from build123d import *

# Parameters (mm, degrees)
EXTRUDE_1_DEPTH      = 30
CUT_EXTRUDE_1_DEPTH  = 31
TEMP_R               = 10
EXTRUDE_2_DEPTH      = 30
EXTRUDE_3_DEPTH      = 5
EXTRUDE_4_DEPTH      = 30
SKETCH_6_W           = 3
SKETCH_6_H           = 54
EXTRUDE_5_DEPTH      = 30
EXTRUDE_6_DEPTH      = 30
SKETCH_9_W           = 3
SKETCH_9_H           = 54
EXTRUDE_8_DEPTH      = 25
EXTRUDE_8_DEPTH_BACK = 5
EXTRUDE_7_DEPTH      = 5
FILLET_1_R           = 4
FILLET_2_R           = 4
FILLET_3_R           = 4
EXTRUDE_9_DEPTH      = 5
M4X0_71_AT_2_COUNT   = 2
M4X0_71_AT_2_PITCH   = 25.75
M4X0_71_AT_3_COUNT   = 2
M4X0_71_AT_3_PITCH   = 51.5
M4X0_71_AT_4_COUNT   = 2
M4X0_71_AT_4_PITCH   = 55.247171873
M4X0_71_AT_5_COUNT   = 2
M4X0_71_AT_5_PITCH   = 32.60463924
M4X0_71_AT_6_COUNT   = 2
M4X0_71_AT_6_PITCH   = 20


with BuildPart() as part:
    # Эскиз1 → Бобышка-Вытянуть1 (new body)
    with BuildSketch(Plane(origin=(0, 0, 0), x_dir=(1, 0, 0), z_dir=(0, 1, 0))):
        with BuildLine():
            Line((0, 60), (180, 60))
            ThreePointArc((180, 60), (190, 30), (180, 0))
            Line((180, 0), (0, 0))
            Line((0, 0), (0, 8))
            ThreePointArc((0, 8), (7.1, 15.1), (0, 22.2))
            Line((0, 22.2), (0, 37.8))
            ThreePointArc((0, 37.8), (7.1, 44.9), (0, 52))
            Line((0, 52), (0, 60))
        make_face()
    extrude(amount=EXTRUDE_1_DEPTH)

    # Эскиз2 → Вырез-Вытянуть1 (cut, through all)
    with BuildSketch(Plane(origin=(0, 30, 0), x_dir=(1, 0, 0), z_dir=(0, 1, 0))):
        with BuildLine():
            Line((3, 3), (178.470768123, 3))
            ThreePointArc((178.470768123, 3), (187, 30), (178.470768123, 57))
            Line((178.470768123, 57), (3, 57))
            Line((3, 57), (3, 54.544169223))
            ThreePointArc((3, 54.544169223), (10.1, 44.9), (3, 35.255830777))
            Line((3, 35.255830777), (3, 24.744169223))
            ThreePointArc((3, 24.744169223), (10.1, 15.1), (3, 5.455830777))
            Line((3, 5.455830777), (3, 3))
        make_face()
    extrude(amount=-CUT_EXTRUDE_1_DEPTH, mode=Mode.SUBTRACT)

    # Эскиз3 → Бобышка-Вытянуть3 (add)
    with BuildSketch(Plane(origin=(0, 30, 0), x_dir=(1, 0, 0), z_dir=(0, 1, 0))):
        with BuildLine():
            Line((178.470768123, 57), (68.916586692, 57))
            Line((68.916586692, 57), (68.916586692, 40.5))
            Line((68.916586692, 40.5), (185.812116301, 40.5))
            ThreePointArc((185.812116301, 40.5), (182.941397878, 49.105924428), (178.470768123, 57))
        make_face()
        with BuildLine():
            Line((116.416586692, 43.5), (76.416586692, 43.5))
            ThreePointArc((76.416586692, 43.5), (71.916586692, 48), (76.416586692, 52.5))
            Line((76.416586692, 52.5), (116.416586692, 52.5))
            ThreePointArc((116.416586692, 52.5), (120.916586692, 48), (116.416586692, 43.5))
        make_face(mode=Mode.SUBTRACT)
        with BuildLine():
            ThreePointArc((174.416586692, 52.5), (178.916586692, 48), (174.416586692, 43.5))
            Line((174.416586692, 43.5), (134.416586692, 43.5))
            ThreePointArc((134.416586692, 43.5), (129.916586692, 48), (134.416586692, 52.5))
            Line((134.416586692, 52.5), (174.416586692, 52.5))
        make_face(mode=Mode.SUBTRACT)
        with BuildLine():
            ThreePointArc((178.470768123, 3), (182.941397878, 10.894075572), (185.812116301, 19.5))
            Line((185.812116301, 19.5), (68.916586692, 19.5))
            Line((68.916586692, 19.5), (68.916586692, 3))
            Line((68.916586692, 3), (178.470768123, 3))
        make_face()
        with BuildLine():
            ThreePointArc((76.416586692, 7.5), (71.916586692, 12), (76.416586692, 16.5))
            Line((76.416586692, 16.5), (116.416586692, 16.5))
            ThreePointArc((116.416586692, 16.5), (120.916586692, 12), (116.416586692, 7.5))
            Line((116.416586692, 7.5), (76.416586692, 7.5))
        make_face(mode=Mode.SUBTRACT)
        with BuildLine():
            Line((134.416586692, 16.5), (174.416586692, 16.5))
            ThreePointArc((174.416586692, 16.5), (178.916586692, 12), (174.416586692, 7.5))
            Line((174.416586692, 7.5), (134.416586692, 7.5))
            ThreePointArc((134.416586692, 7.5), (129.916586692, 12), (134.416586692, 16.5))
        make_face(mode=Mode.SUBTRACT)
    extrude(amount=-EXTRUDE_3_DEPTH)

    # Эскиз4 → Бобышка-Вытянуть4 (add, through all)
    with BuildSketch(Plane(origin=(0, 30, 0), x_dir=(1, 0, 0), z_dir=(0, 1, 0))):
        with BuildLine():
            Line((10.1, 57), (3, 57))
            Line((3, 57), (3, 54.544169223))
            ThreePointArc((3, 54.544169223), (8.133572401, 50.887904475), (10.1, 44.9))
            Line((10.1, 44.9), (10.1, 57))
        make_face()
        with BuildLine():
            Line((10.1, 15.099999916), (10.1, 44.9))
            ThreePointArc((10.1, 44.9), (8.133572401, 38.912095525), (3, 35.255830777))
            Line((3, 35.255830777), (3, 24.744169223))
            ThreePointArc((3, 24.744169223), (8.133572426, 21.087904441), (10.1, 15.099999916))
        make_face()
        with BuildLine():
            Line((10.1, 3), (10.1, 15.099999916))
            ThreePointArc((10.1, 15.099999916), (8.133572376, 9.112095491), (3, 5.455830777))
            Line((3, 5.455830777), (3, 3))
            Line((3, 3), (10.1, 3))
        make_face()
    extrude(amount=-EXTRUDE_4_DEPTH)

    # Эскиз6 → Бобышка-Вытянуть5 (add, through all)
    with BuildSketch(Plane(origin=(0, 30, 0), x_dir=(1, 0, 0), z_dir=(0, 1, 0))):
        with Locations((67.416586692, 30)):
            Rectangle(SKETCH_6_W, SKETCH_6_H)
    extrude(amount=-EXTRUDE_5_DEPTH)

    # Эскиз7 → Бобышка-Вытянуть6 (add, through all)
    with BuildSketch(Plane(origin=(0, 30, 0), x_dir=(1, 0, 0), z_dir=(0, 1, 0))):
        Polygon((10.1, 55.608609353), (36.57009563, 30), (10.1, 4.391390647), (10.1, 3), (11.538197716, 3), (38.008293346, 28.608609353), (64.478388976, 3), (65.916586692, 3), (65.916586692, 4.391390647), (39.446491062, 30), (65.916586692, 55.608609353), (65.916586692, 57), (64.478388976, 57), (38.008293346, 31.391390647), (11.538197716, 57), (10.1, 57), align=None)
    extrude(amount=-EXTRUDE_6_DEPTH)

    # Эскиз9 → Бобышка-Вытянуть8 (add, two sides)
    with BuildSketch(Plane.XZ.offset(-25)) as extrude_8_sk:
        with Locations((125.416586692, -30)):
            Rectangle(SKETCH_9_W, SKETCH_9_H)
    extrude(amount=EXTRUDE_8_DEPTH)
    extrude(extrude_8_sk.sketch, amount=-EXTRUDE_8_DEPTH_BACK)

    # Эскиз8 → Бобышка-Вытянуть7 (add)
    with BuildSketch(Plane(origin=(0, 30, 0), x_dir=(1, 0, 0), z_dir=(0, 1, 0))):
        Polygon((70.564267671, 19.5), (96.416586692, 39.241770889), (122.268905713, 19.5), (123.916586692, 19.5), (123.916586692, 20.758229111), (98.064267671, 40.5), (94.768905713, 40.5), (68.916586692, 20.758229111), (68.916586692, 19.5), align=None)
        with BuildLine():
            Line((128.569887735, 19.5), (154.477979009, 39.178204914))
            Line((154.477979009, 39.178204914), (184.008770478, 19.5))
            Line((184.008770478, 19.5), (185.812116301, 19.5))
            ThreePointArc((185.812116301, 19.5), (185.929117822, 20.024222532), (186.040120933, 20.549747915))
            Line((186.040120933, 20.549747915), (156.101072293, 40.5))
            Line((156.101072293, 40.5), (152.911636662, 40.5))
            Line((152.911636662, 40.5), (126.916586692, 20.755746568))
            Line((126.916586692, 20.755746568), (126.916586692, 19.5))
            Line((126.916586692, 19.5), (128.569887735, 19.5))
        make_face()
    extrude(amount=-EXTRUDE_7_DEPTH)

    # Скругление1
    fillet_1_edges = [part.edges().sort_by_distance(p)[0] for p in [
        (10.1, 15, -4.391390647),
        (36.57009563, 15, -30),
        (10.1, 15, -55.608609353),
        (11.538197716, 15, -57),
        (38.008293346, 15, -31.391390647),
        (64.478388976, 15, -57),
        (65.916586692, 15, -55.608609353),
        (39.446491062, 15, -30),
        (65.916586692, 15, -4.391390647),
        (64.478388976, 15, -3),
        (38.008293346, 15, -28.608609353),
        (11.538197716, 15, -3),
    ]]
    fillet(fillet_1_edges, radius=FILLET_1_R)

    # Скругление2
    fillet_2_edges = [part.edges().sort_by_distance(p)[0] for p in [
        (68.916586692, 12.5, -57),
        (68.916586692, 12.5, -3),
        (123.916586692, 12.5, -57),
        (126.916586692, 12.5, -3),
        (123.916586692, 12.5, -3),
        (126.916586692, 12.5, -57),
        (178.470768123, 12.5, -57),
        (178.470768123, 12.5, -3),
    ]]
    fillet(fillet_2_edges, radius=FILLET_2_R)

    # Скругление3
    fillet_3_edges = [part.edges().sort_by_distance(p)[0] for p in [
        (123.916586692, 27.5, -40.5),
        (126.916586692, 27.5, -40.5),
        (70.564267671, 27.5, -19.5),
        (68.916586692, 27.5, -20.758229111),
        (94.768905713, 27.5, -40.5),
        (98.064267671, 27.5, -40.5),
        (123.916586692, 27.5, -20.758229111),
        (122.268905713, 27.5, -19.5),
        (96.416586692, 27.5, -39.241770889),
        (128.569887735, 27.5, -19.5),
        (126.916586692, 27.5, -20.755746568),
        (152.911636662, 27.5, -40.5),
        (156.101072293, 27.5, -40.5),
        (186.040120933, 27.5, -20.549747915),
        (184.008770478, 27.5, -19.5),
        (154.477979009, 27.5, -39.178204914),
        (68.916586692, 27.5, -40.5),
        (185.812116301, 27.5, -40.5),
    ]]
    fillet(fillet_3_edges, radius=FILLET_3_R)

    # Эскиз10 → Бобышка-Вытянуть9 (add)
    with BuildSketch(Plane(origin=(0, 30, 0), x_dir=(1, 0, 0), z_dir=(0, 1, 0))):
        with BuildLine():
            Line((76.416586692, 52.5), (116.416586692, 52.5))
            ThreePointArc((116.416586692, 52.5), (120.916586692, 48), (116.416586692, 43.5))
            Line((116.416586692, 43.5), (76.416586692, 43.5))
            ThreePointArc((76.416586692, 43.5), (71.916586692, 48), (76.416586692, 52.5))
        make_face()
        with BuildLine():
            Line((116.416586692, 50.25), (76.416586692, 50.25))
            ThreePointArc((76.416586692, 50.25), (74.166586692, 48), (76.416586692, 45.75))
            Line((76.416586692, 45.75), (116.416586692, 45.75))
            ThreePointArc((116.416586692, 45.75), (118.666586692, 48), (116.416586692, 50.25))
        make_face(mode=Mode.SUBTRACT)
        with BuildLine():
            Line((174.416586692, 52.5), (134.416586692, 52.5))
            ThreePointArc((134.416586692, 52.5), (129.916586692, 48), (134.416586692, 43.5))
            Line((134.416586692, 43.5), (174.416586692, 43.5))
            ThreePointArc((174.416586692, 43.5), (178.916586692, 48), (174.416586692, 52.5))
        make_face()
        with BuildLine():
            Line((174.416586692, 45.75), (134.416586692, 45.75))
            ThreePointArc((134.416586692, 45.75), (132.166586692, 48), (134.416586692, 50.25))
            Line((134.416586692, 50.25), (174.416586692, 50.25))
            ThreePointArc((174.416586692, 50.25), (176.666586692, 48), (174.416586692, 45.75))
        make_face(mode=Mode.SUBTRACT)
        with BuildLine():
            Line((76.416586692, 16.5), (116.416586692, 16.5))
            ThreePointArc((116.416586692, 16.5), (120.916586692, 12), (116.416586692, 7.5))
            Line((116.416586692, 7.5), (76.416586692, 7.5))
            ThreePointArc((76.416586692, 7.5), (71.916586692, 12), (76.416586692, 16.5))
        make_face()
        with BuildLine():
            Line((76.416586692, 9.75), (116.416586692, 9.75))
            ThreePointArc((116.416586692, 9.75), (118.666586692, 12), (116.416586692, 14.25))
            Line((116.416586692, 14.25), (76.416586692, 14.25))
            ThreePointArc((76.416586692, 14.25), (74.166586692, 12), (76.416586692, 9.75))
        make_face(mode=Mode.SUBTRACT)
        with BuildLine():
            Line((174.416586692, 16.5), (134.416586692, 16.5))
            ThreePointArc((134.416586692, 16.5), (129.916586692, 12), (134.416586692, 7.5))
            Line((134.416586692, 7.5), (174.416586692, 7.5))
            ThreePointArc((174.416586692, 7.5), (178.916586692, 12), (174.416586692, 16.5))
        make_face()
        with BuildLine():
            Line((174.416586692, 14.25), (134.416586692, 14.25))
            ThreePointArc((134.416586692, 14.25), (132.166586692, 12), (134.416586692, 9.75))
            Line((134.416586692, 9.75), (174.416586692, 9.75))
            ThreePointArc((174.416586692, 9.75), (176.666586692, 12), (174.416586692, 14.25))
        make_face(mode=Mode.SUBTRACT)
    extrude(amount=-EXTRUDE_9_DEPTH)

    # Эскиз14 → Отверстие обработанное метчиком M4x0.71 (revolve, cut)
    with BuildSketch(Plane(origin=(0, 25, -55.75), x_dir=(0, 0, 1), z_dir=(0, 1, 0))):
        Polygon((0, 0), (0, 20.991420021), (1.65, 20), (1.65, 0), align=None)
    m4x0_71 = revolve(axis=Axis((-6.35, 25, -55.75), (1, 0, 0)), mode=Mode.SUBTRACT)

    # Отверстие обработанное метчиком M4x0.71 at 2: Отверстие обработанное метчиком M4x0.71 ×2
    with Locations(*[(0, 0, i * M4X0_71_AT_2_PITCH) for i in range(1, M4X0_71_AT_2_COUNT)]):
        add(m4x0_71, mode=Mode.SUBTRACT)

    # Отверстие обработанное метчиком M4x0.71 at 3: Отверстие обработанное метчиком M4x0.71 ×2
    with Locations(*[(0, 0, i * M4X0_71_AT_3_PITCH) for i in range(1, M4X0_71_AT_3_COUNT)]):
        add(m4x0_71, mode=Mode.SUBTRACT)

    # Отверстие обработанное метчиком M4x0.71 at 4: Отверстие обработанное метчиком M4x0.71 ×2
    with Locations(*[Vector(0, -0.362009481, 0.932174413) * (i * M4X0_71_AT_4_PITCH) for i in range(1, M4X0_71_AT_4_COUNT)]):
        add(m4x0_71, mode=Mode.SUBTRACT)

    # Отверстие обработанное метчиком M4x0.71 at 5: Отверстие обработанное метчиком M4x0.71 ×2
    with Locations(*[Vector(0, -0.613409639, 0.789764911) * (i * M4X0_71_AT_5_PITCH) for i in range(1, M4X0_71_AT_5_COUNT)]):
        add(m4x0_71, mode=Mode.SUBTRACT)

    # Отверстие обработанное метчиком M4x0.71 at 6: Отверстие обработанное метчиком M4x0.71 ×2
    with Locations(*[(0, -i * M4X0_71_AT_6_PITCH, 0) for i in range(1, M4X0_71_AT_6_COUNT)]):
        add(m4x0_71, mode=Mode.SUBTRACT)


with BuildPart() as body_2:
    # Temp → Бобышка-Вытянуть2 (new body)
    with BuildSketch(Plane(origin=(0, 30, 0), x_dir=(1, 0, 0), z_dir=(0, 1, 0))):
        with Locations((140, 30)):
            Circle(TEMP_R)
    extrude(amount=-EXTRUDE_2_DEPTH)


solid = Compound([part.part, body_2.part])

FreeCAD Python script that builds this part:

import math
import FreeCAD as App
import Part
import Sketcher
Q = App.Units.Quantity


def edges_at(feature, points):
    """Names of the edges that pass closest to the given points."""
    edges = feature.Shape.Edges
    near = lambda p: min(range(len(edges)), key=lambda i: edges[i].distToShape(Part.Vertex(*p))[0])
    return sorted({f"Edge{near(p) + 1}" for p in points})


def add_polygon(sketch, points):
    """Adds a closed chain of lines whose ends are joined by coincident constraints."""
    first, n = sketch.GeometryCount, len(points)
    for a, b in zip(points, points[1:] + points[:1]):
        sketch.addGeometry(Part.LineSegment(App.Vector(*a, 0), App.Vector(*b, 0)), False)
    for i in range(n):
        sketch.addConstraint(Sketcher.Constraint("Coincident", first + i, 2, first + (i + 1) % n, 1))

doc = App.newDocument("Part")
params = doc.addObject("Spreadsheet::Sheet", "Params")
for row, (alias, value) in enumerate([
    ("sketch1_radius", "50 mm"),
    ("sketch1_radius2", "7.1 mm"),
    ("sketch1_width", "180 mm"),
    ("sketch1_height", "8 mm"),
    ("sketch1_height2", "15.6 mm"),
    ("pad1_length", "30 mm"),
    ("sketch2_radius", "47 mm"),
    ("sketch2_radius2", "10.1 mm"),
    ("sketch3_radius", "47 mm"),
    ("sketch3_radius2", "4.5 mm"),
    ("sketch3_width", "40 mm"),
    ("sketch3_height", "16.5 mm"),
    ("pad2_length", "5 mm"),
    ("sketch4_radius", "10.1 mm"),
    ("sketch4_width", "7.1 mm"),
    ("sketch4_height", "12.1 mm"),
    ("sketch4_height2", "29.8 mm"),
    ("pad3_length", "30 mm"),
    ("sketch5_width", "3 mm"),
    ("sketch5_height", "54 mm"),
    ("pad4_length", "30 mm"),
    ("pad5_length", "30 mm"),
    ("sketch7_width", "3 mm"),
    ("sketch7_height", "54 mm"),
    ("pad6_length", "25 mm"),
    ("pad6_length2", "5 mm"),
    ("pad7_length", "5 mm"),
    ("fillet_radius", "4 mm"),
    ("fillet2_radius", "4 mm"),
    ("fillet3_radius", "4 mm"),
    ("sketch9_radius", "4.5 mm"),
    ("sketch9_width", "40 mm"),
    ("sketch9_radius2", "2.25 mm"),
    ("pad8_length", "5 mm"),
    ("sketch10_width", "20 mm"),
    ("sketch10_height", "1.65 mm"),
    ("groove_angle", "360 deg"),
    ("linearpattern_pitch", "25.75 mm"),
    ("linearpattern2_pitch", "51.5 mm"),
    ("linearpattern3_pitch", "55.247172 mm"),
    ("linearpattern4_pitch", "32.604639 mm"),
    ("linearpattern5_pitch", "20 mm"),
    ("sketch11_diameter", "20 mm"),
    ("pad9_length", "30 mm"),
], start=1):
    params.set(f"A{row}", alias)
    params.set(f"B{row}", "=" + value)
    params.setAlias(f"B{row}", alias)

body = doc.addObject("PartDesign::Body", "Body")

# Sketch on XZ plane
sketch1 = body.newObject("Sketcher::SketchObject", "Sketch")
sketch1.AttachmentSupport = (doc.getObject("XZ_Plane"), [""])
sketch1.MapMode = "FlatFace"
sketch1.addGeometry([
    Part.LineSegment(App.Vector(180, -60, 0), App.Vector(0, -60, 0)),  # 0
    Part.LineSegment(App.Vector(0, -60, 0), App.Vector(0, -52, 0)),  # 1
    Part.ArcOfCircle(Part.Circle(App.Vector(0, -45, 0), App.Vector(0, 0, 1), 7), math.radians(-90), math.radians(90)),  # 2
    Part.LineSegment(App.Vector(0, -38, 0), App.Vector(0, -22, 0)),  # 3
    Part.ArcOfCircle(Part.Circle(App.Vector(0, -15, 0), App.Vector(0, 0, 1), 7), math.radians(-90), math.radians(90)),  # 4
    Part.LineSegment(App.Vector(0, -8, 0), App.Vector(0, 0, 0)),  # 5
    Part.LineSegment(App.Vector(0, 0, 0), App.Vector(180, 0, 0)),  # 6
    Part.ArcOfCircle(Part.Circle(App.Vector(140, -30, 0), App.Vector(0, 0, 1), 50), math.radians(-37), math.radians(37)),  # 7
], False)
sketch1.addConstraint([
    Sketcher.Constraint("Coincident", 0, 2, 1, 1),
    Sketcher.Constraint("Coincident", 1, 2, 2, 1),
    Sketcher.Constraint("Coincident", 2, 2, 3, 1),
    Sketcher.Constraint("Coincident", 3, 2, 4, 1),
    Sketcher.Constraint("Coincident", 4, 2, 5, 1),
    Sketcher.Constraint("Coincident", 5, 2, 6, 1),
    Sketcher.Constraint("Coincident", 6, 2, 7, 2),
    Sketcher.Constraint("Coincident", 7, 1, 0, 1),
    Sketcher.Constraint("Horizontal", 0),
    Sketcher.Constraint("Vertical", 1),
    Sketcher.Constraint("Vertical", 3),
    Sketcher.Constraint("Vertical", 5),
    Sketcher.Constraint("Horizontal", 6),
    Sketcher.Constraint("Coincident", 5, 2, -1, 1),
    Sketcher.Constraint("Equal", 2, 4),
    Sketcher.Constraint("PointOnObject", 2, 3, -2),
    Sketcher.Constraint("PointOnObject", 4, 3, -2),
    Sketcher.Constraint("PointOnObject", 0, 2, -2),
    Sketcher.Constraint("PointOnObject", 2, 2, -2),
    Sketcher.Constraint("Vertical", 6, 2, 7, 1),
    Sketcher.Constraint("Equal", 1, 5),
    Sketcher.Constraint("Radius", 7, Q("50 mm")),
    Sketcher.Constraint("Radius", 2, Q("7.1 mm")),
    Sketcher.Constraint("DistanceX", 0, 2, 0, 1, Q("180 mm")),
    Sketcher.Constraint("DistanceY", 1, 1, 1, 2, Q("8 mm")),
    Sketcher.Constraint("DistanceY", 3, 1, 3, 2, Q("15.6 mm")),
])
sketch1.setExpression("Constraints[21]", "Params.sketch1_radius")
sketch1.setExpression("Constraints[22]", "Params.sketch1_radius2")
sketch1.setExpression("Constraints[23]", "Params.sketch1_width")
sketch1.setExpression("Constraints[24]", "Params.sketch1_height")
sketch1.setExpression("Constraints[25]", "Params.sketch1_height2")
pad1 = body.newObject("PartDesign::Pad", "Pad")
pad1.Profile = sketch1
pad1.setExpression("Length", "Params.pad1_length")
pad1.Reversed = True

# Sketch on XZ plane
sketch2 = body.newObject("Sketcher::SketchObject", "Sketch001")
sketch2.AttachmentSupport = (doc.getObject("XZ_Plane"), [""])
sketch2.MapMode = "FlatFace"
sketch2.AttachmentOffset = App.Placement(App.Vector(0, 0, -30), App.Rotation())
sketch2.addGeometry([
    Part.LineSegment(App.Vector(3, -3, 0), App.Vector(178.5, -3, 0)),  # 0
    Part.ArcOfCircle(Part.Circle(App.Vector(140, -30, 0), App.Vector(0, 0, 1), 47), math.radians(-35), math.radians(35)),  # 1
    Part.LineSegment(App.Vector(178.5, -57, 0), App.Vector(3, -57, 0)),  # 2
    Part.LineSegment(App.Vector(3, -57, 0), App.Vector(3, -54.5, 0)),  # 3
    Part.ArcOfCircle(Part.Circle(App.Vector(0, -44.9, 0), App.Vector(0, 0, 1), 10.1), math.radians(-73), math.radians(73)),  # 4
    Part.LineSegment(App.Vector(3, -35.3, 0), App.Vector(3, -24.7, 0)),  # 5
    Part.ArcOfCircle(Part.Circle(App.Vector(0, -15.1, 0), App.Vector(0, 0, 1), 10.1), math.radians(-73), math.radians(73)),  # 6
    Part.LineSegment(App.Vector(3, -5.5, 0), App.Vector(3, -3, 0)),  # 7
], False)
sketch2.addConstraint([
    Sketcher.Constraint("Coincident", 0, 2, 1, 2),
    Sketcher.Constraint("Coincident", 1, 1, 2, 1),
    Sketcher.Constraint("Coincident", 2, 2, 3, 1),
    Sketcher.Constraint("Coincident", 3, 2, 4, 1),
    Sketcher.Constraint("Coincident", 4, 2, 5, 1),
    Sketcher.Constraint("Coincident", 5, 2, 6, 1),
    Sketcher.Constraint("Coincident", 6, 2, 7, 1),
    Sketcher.Constraint("Coincident", 7, 2, 0, 1),
    Sketcher.Constraint("Horizontal", 0),
    Sketcher.Constraint("Horizontal", 2),
    Sketcher.Constraint("Vertical", 3),
    Sketcher.Constraint("Vertical", 5),
    Sketcher.Constraint("Vertical", 7),
    Sketcher.Constraint("Equal", 4, 6),
    Sketcher.Constraint("PointOnObject", 4, 3, -2),
    Sketcher.Constraint("PointOnObject", 6, 3, -2),
    Sketcher.Constraint("Vertical", 0, 2, 1, 1),
    Sketcher.Constraint("Vertical", 3, 2, 4, 2),
    Sketcher.Constraint("Vertical", 5, 2, 6, 2),
    Sketcher.Constraint("Equal", 3, 7),
    Sketcher.Constraint("Radius", 1, Q("47 mm")),
    Sketcher.Constraint("Radius", 4, Q("10.1 mm")),
    Sketcher.Constraint("DistanceX", -1, 1, 1, 3, Q("140 mm")),
    Sketcher.Constraint("DistanceY", 1, 3, -1, 1, Q("30 mm")),
    Sketcher.Constraint("DistanceY", 0, 2, -1, 1, Q("3 mm")),
    Sketcher.Constraint("DistanceX", -1, 1, 2, 2, Q("3 mm")),
    Sketcher.Constraint("DistanceY", 4, 3, -1, 1, Q("44.9 mm")),
])
sketch2.setExpression("Constraints[20]", "Params.sketch2_radius")
sketch2.setExpression("Constraints[21]", "Params.sketch2_radius2")
pocket1 = body.newObject("PartDesign::Pocket", "Pocket")
pocket1.Profile = sketch2
pocket1.Type = "ThroughAll"
pocket1.Reversed = True

# Sketch on XZ plane
sketch3 = body.newObject("Sketcher::SketchObject", "Sketch002")
sketch3.AttachmentSupport = (doc.getObject("XZ_Plane"), [""])
sketch3.MapMode = "FlatFace"
sketch3.AttachmentOffset = App.Placement(App.Vector(0, 0, -30), App.Rotation())
sketch3.addGeometry([
    Part.LineSegment(App.Vector(178.5, -57, 0), App.Vector(68.9, -57, 0)),  # 0
    Part.LineSegment(App.Vector(68.9, -57, 0), App.Vector(68.9, -40.5, 0)),  # 1
    Part.LineSegment(App.Vector(68.9, -40.5, 0), App.Vector(185.8, -40.5, 0)),  # 2
    Part.ArcOfCircle(Part.Circle(App.Vector(140, -30, 0), App.Vector(0, 0, 1), 47), math.radians(-35), math.radians(-13)),  # 3
    Part.ArcOfCircle(Part.Circle(App.Vector(116.4, -48, 0), App.Vector(0, 0, 1), 4.5), math.radians(-90), math.radians(90)),  # 4
    Part.LineSegment(App.Vector(116.4, -43.5, 0), App.Vector(76.4, -43.5, 0)),  # 5
    Part.ArcOfCircle(Part.Circle(App.Vector(76.4, -48, 0), App.Vector(0, 0, 1), 4.5), math.radians(90), math.radians(270)),  # 6
    Part.LineSegment(App.Vector(76.4, -52.5, 0), App.Vector(116.4, -52.5, 0)),  # 7
    Part.LineSegment(App.Vector(134.4, -52.5, 0), App.Vector(174.4, -52.5, 0)),  # 8
    Part.ArcOfCircle(Part.Circle(App.Vector(174.4, -48, 0), App.Vector(0, 0, 1), 4.5), math.radians(-90), math.radians(90)),  # 9
    Part.LineSegment(App.Vector(174.4, -43.5, 0), App.Vector(134.4, -43.5, 0)),  # 10
    Part.ArcOfCircle(Part.Circle(App.Vector(134.4, -48, 0), App.Vector(0, 0, 1), 4.5), math.radians(90), math.radians(270)),  # 11
    Part.ArcOfCircle(Part.Circle(App.Vector(140, -30, 0), App.Vector(0, 0, 1), 47), math.radians(13), math.radians(35)),  # 12
    Part.LineSegment(App.Vector(185.8, -19.5, 0), App.Vector(68.9, -19.5, 0)),  # 13
    Part.LineSegment(App.Vector(68.9, -19.5, 0), App.Vector(68.9, -3, 0)),  # 14
    Part.LineSegment(App.Vector(68.9, -3, 0), App.Vector(178.5, -3, 0)),  # 15
    Part.LineSegment(App.Vector(116.4, -7.5, 0), App.Vector(76.4, -7.5, 0)),  # 16
    Part.ArcOfCircle(Part.Circle(App.Vector(76.4, -12, 0), App.Vector(0, 0, 1), 4.5), math.radians(90), math.radians(270)),  # 17
    Part.LineSegment(App.Vector(76.4, -16.5, 0), App.Vector(116.4, -16.5, 0)),  # 18
    Part.ArcOfCircle(Part.Circle(App.Vector(116.4, -12, 0), App.Vector(0, 0, 1), 4.5), math.radians(-90), math.radians(90)),  # 19
    Part.ArcOfCircle(Part.Circle(App.Vector(134.4, -12, 0), App.Vector(0, 0, 1), 4.5), math.radians(90), math.radians(270)),  # 20
    Part.LineSegment(App.Vector(134.4, -16.5, 0), App.Vector(174.4, -16.5, 0)),  # 21
    Part.ArcOfCircle(Part.Circle(App.Vector(174.4, -12, 0), App.Vector(0, 0, 1), 4.5), math.radians(-90), math.radians(90)),  # 22
    Part.LineSegment(App.Vector(174.4, -7.5, 0), App.Vector(134.4, -7.5, 0)),  # 23
], False)
sketch3.addConstraint([
    Sketcher.Constraint("Coincident", 0, 2, 1, 1),
    Sketcher.Constraint("Coincident", 1, 2, 2, 1),
    Sketcher.Constraint("Coincident", 2, 2, 3, 2),
    Sketcher.Constraint("Coincident", 3, 1, 0, 1),
    Sketcher.Constraint("Tangent", 4, 2, 5, 1),
    Sketcher.Constraint("Tangent", 5, 2, 6, 1),
    Sketcher.Constraint("Tangent", 6, 2, 7, 1),
    Sketcher.Constraint("Tangent", 7, 2, 4, 1),
    Sketcher.Constraint("Tangent", 8, 2, 9, 1),
    Sketcher.Constraint("Tangent", 9, 2, 10, 1),
    Sketcher.Constraint("Tangent", 10, 2, 11, 1),
    Sketcher.Constraint("Tangent", 11, 2, 8, 1),
    Sketcher.Constraint("Coincident", 12, 1, 13, 1),
    Sketcher.Constraint("Coincident", 13, 2, 14, 1),
    Sketcher.Constraint("Coincident", 14, 2, 15, 1),
    Sketcher.Constraint("Coincident", 15, 2, 12, 2),
    Sketcher.Constraint("Tangent", 16, 2, 17, 1),
    Sketcher.Constraint("Tangent", 17, 2, 18, 1),
    Sketcher.Constraint("Tangent", 18, 2, 19, 1),
    Sketcher.Constraint("Tangent", 19, 2, 16, 1),
    Sketcher.Constraint("Tangent", 20, 2, 21, 1),
    Sketcher.Constraint("Tangent", 21, 2, 22, 1),
    Sketcher.Constraint("Tangent", 22, 2, 23, 1),
    Sketcher.Constraint("Tangent", 23, 2, 20, 1),
    Sketcher.Constraint("Horizontal", 0),
    Sketcher.Constraint("Vertical", 1),
    Sketcher.Constraint("Horizontal", 2),
    Sketcher.Constraint("Horizontal", 5),
    Sketcher.Constraint("Horizontal", 7),
    Sketcher.Constraint("Horizontal", 8),
    Sketcher.Constraint("Horizontal", 10),
    Sketcher.Constraint("Horizontal", 13),
    Sketcher.Constraint("Vertical", 14),
    Sketcher.Constraint("Horizontal", 15),
    Sketcher.Constraint("Horizontal", 16),
    Sketcher.Constraint("Horizontal", 18),
    Sketcher.Constraint("Horizontal", 21),
    Sketcher.Constraint("Horizontal", 23),
    Sketcher.Constraint("Coincident", 12, 3, 3, 3),
    Sketcher.Constraint("Equal", 6, 9),
    Sketcher.Constraint("Equal", 3, 12),
    Sketcher.Constraint("Equal", 11, 17),
    Sketcher.Constraint("Equal", 19, 20),
    Sketcher.Constraint("Horizontal", 6, 3, 9, 3),
    Sketcher.Constraint("Horizontal", 19, 3, 20, 3),
    Sketcher.Constraint("Vertical", 6, 3, 17, 3),
    Sketcher.Constraint("Vertical", 4, 3, 19, 3),
    Sketcher.Constraint("Vertical", 11, 3, 20, 3),
    Sketcher.Constraint("Vertical", 9, 3, 22, 3),
    Sketcher.Constraint("Vertical", 2, 2, 12, 1),
    Sketcher.Constraint("Vertical", 1, 2, 13, 2),
    Sketcher.Constraint("Vertical", 3, 1, 15, 2),
    Sketcher.Constraint("Equal", 7, 8),
    Sketcher.Constraint("Radius", 3, Q("47 mm")),
    Sketcher.Constraint("Radius", 4, Q("4.5 mm")),
    Sketcher.Constraint("DistanceX", 5, 2, 5, 1, Q("40 mm")),
    Sketcher.Constraint("DistanceY", 1, 1, 1, 2, Q("16.5 mm")),
    Sketcher.Constraint("DistanceX", -1, 1, 3, 3, Q("140 mm")),
    Sketcher.Constraint("DistanceY", 3, 3, -1, 1, Q("30 mm")),
    Sketcher.Constraint("DistanceY", 4, 3, -1, 1, Q("48 mm")),
    Sketcher.Constraint("DistanceY", 17, 3, -1, 1, Q("12 mm")),
    Sketcher.Constraint("DistanceY", 0, 2, -1, 1, Q("57 mm")),
    Sketcher.Constraint("DistanceX", 4, 3, 9, 3, Q("58 mm")),
    Sketcher.Constraint("DistanceX", 0, 2, 6, 3, Q("7.5 mm")),
    Sketcher.Constraint("DistanceX", 0, 2, 0, 1, Q("109.554181 mm")),
])
sketch3.setExpression("Constraints[53]", "Params.sketch3_radius")
sketch3.setExpression("Constraints[54]", "Params.sketch3_radius2")
sketch3.setExpression("Constraints[55]", "Params.sketch3_width")
sketch3.setExpression("Constraints[56]", "Params.sketch3_height")
pad2 = body.newObject("PartDesign::Pad", "Pad001")
pad2.Profile = sketch3
pad2.setExpression("Length", "Params.pad2_length")

# Sketch on XZ plane
sketch4 = body.newObject("Sketcher::SketchObject", "Sketch003")
sketch4.AttachmentSupport = (doc.getObject("XZ_Plane"), [""])
sketch4.MapMode = "FlatFace"
sketch4.AttachmentOffset = App.Placement(App.Vector(0, 0, -30), App.Rotation())
sketch4.addGeometry([
    Part.LineSegment(App.Vector(10.1, -57, 0), App.Vector(3, -57, 0)),  # 0
    Part.LineSegment(App.Vector(3, -57, 0), App.Vector(3, -54.5, 0)),  # 1
    Part.ArcOfCircle(Part.Circle(App.Vector(0, -44.9, 0), App.Vector(0, 0, 1), 10.1), math.radians(-73), math.radians(0)),  # 2
    Part.LineSegment(App.Vector(10.1, -44.9, 0), App.Vector(10.1, -57, 0)),  # 3
    Part.LineSegment(App.Vector(10.1, -15.1, 0), App.Vector(10.1, -44.9, 0)),  # 4
    Part.ArcOfCircle(Part.Circle(App.Vector(0, -44.9, 0), App.Vector(0, 0, 1), 10.1), math.radians(0), math.radians(73)),  # 5
    Part.LineSegment(App.Vector(3, -35.3, 0), App.Vector(3, -24.7, 0)),  # 6
    Part.ArcOfCircle(Part.Circle(App.Vector(0, -15.1, 0), App.Vector(0, 0, 1), 10.1), math.radians(-73), math.radians(0)),  # 7
    Part.LineSegment(App.Vector(10.1, -3, 0), App.Vector(10.1, -15.1, 0)),  # 8
    Part.ArcOfCircle(Part.Circle(App.Vector(0, -15.1, 0), App.Vector(0, 0, 1), 10.1), math.radians(0), math.radians(73)),  # 9
    Part.LineSegment(App.Vector(3, -5.5, 0), App.Vector(3, -3, 0)),  # 10
    Part.LineSegment(App.Vector(3, -3, 0), App.Vector(10.1, -3, 0)),  # 11
], False)
sketch4.addConstraint([
    Sketcher.Constraint("Coincident", 0, 2, 1, 1),
    Sketcher.Constraint("Coincident", 1, 2, 2, 1),
    Sketcher.Constraint("Tangent", 2, 2, 3, 1),
    Sketcher.Constraint("Coincident", 3, 2, 0, 1),
    Sketcher.Constraint("Tangent", 4, 2, 5, 1),
    Sketcher.Constraint("Coincident", 5, 2, 6, 1),
    Sketcher.Constraint("Coincident", 6, 2, 7, 1),
    Sketcher.Constraint("Tangent", 7, 2, 4, 1),
    Sketcher.Constraint("Tangent", 8, 2, 9, 1),
    Sketcher.Constraint("Coincident", 9, 2, 10, 1),
    Sketcher.Constraint("Coincident", 10, 2, 11, 1),
    Sketcher.Constraint("Coincident", 11, 2, 8, 1),
    Sketcher.Constraint("Horizontal", 0),
    Sketcher.Constraint("Vertical", 1),
    Sketcher.Constraint("Vertical", 3),
    Sketcher.Constraint("Vertical", 4),
    Sketcher.Constraint("Vertical", 6),
    Sketcher.Constraint("Vertical", 8),
    Sketcher.Constraint("Vertical", 10),
    Sketcher.Constraint("Horizontal", 11),
    Sketcher.Constraint("Coincident", 5, 3, 2, 3),
    Sketcher.Constraint("Coincident", 9, 3, 7, 3),
    Sketcher.Constraint("Equal", 2, 5),
    Sketcher.Constraint("Equal", 5, 7),
    Sketcher.Constraint("Equal", 7, 9),
    Sketcher.Constraint("PointOnObject", 2, 3, -2),
    Sketcher.Constraint("Vertical", 1, 2, 5, 2),
    Sketcher.Constraint("Vertical", 6, 2, 9, 2),
    Sketcher.Constraint("Equal", 3, 8),
    Sketcher.Constraint("Radius", 2, Q("10.1 mm")),
    Sketcher.Constraint("DistanceX", 0, 2, 0, 1, Q("7.1 mm")),
    Sketcher.Constraint("DistanceY", 3, 2, 3, 1, Q("12.1 mm")),
    Sketcher.Constraint("DistanceY", 4, 2, 4, 1, Q("29.8 mm")),
    Sketcher.Constraint("DistanceY", 0, 2, -1, 1, Q("57 mm")),
])
sketch4.setExpression("Constraints[29]", "Params.sketch4_radius")
sketch4.setExpression("Constraints[30]", "Params.sketch4_width")
sketch4.setExpression("Constraints[31]", "Params.sketch4_height")
sketch4.setExpression("Constraints[32]", "Params.sketch4_height2")
pad3 = body.newObject("PartDesign::Pad", "Pad002")
pad3.Profile = sketch4
pad3.setExpression("Length", "Params.pad3_length")

# Sketch on XZ plane
sketch5 = body.newObject("Sketcher::SketchObject", "Sketch004")
sketch5.AttachmentSupport = (doc.getObject("XZ_Plane"), [""])
sketch5.MapMode = "FlatFace"
sketch5.AttachmentOffset = App.Placement(App.Vector(0, 0, -30), App.Rotation())
add_polygon(sketch5, [(65.9, -57), (65.9, -3), (68.9, -3), (68.9, -57)])  # lines 0-3
sketch5.addConstraint([
    Sketcher.Constraint("Vertical", 0),
    Sketcher.Constraint("Horizontal", 1),
    Sketcher.Constraint("Vertical", 2),
    Sketcher.Constraint("Horizontal", 3),
    Sketcher.Constraint("DistanceX", 1, 1, 1, 2, Q("3 mm")),
    Sketcher.Constraint("DistanceY", 0, 1, 0, 2, Q("54 mm")),
    Sketcher.Constraint("DistanceY", 0, 2, -1, 1, Q("3 mm")),
    Sketcher.Constraint("DistanceX", -1, 1, 0, 2, Q("65.916587 mm")),
])
sketch5.setExpression("Constraints[8]", "Params.sketch5_width")
sketch5.setExpression("Constraints[9]", "Params.sketch5_height")
pad4 = body.newObject("PartDesign::Pad", "Pad003")
pad4.Profile = sketch5
pad4.setExpression("Length", "Params.pad4_length")

# Sketch on XZ plane
sketch6 = body.newObject("Sketcher::SketchObject", "Sketch005")
sketch6.AttachmentSupport = (doc.getObject("XZ_Plane"), [""])
sketch6.MapMode = "FlatFace"
sketch6.AttachmentOffset = App.Placement(App.Vector(0, 0, -30), App.Rotation())
add_polygon(sketch6, [(10.1, -55.6), (36.6, -30), (10.1, -4.4), (10.1, -3), (11.5, -3), (38, -28.6), (64.5, -3), (65.9, -3), (65.9, -4.4), (39.4, -30), (65.9, -55.6), (65.9, -57), (64.5, -57), (38, -31.4), (11.5, -57), (10.1, -57)])  # lines 0-15
sketch6.addConstraint([
    Sketcher.Constraint("Vertical", 2),
    Sketcher.Constraint("Horizontal", 3),
    Sketcher.Constraint("Horizontal", 6),
    Sketcher.Constraint("Vertical", 7),
    Sketcher.Constraint("Vertical", 10),
    Sketcher.Constraint("Horizontal", 11),
    Sketcher.Constraint("Horizontal", 14),
    Sketcher.Constraint("Vertical", 15),
    Sketcher.Constraint("Parallel", 1, 4),
    Sketcher.Constraint("Parallel", 0, 5),
    Sketcher.Constraint("Parallel", 5, 8),
    Sketcher.Constraint("Parallel", 4, 9),
    Sketcher.Constraint("Parallel", 9, 12),
    Sketcher.Constraint("Parallel", 8, 13),
    Sketcher.Constraint("Horizontal", 3, 2, 5, 2),
    Sketcher.Constraint("Horizontal", 1, 2, 7, 2),
    Sketcher.Constraint("Horizontal", 0, 2, 8, 2),
    Sketcher.Constraint("Horizontal", 11, 2, 13, 2),
    Sketcher.Constraint("Horizontal", 9, 2, 15, 2),
    Sketcher.Constraint("Vertical", 7, 2, 9, 2),
    Sketcher.Constraint("Vertical", 5, 2, 11, 2),
    Sketcher.Constraint("Vertical", 4, 2, 12, 2),
    Sketcher.Constraint("Vertical", 3, 2, 13, 2),
    Sketcher.Constraint("Equal", 3, 6),
    Sketcher.Constraint("Equal", 7, 10),
    Sketcher.Constraint("Equal", 1, 4),
    Sketcher.Constraint("DistanceY", 0, 2, -1, 1, Q("30 mm")),
    Sketcher.Constraint("DistanceY", 2, 2, -1, 1, Q("3 mm")),
    Sketcher.Constraint("DistanceX", -1, 1, 1, 2, Q("10.1 mm")),
    Sketcher.Constraint("DistanceY", 2, 1, 2, 2, Q("1.391391 mm")),
    Sketcher.Constraint("DistanceX", 3, 1, 3, 2, Q("1.438198 mm")),
    Sketcher.Constraint("DistanceX", -1, 1, 5, 2, Q("64.478389 mm")),
])
pad5 = body.newObject("PartDesign::Pad", "Pad004")
pad5.Profile = sketch6
pad5.setExpression("Length", "Params.pad5_length")

# Sketch on XZ plane
sketch7 = body.newObject("Sketcher::SketchObject", "Sketch006")
sketch7.AttachmentSupport = (doc.getObject("XZ_Plane"), [""])
sketch7.MapMode = "FlatFace"
sketch7.AttachmentOffset = App.Placement(App.Vector(0, 0, -25), App.Rotation())
add_polygon(sketch7, [(123.9, -3), (123.9, -57), (126.9, -57), (126.9, -3)])  # lines 0-3
sketch7.addConstraint([
    Sketcher.Constraint("Vertical", 0),
    Sketcher.Constraint("Horizontal", 1),
    Sketcher.Constraint("Vertical", 2),
    Sketcher.Constraint("Horizontal", 3),
    Sketcher.Constraint("DistanceX", 1, 1, 1, 2, Q("3 mm")),
    Sketcher.Constraint("DistanceY", 0, 2, 0, 1, Q("54 mm")),
    Sketcher.Constraint("DistanceY", 0, 2, -1, 1, Q("57 mm")),
    Sketcher.Constraint("DistanceX", -1, 1, 0, 2, Q("123.916587 mm")),
])
sketch7.setExpression("Constraints[8]", "Params.sketch7_width")
sketch7.setExpression("Constraints[9]", "Params.sketch7_height")
pad6 = body.newObject("PartDesign::Pad", "Pad005")
pad6.Profile = sketch7
pad6.Type = "TwoLengths"
pad6.setExpression("Length", "Params.pad6_length")
pad6.setExpression("Length2", "Params.pad6_length2")

# Sketch on XZ plane
sketch8 = body.newObject("Sketcher::SketchObject", "Sketch007")
sketch8.AttachmentSupport = (doc.getObject("XZ_Plane"), [""])
sketch8.MapMode = "FlatFace"
sketch8.AttachmentOffset = App.Placement(App.Vector(0, 0, -30), App.Rotation())
add_polygon(sketch8, [(70.6, -19.5), (96.4, -39.2), (122.3, -19.5), (123.9, -19.5), (123.9, -20.8), (98.1, -40.5), (94.8, -40.5), (68.9, -20.8), (68.9, -19.5)])  # lines 0-8
sketch8.addGeometry(Part.LineSegment(App.Vector(128.6, -19.5, 0), App.Vector(154.5, -39.2, 0)), False)  # 9
sketch8.addGeometry(Part.LineSegment(App.Vector(154.5, -39.2, 0), App.Vector(184, -19.5, 0)), False)  # 10
sketch8.addGeometry(Part.LineSegment(App.Vector(184, -19.5, 0), App.Vector(185.8, -19.5, 0)), False)  # 11
sketch8.addGeometry(Part.ArcOfCircle(Part.Circle(App.Vector(140, -30, 0), App.Vector(0, 0, 1), 47), math.radians(11.6), math.radians(12.91)), False)  # 12
sketch8.addGeometry(Part.LineSegment(App.Vector(186, -20.5, 0), App.Vector(156.1, -40.5, 0)), False)  # 13
sketch8.addGeometry(Part.LineSegment(App.Vector(156.1, -40.5, 0), App.Vector(152.9, -40.5, 0)), False)  # 14
sketch8.addGeometry(Part.LineSegment(App.Vector(152.9, -40.5, 0), App.Vector(126.9, -20.8, 0)), False)  # 15
sketch8.addGeometry(Part.LineSegment(App.Vector(126.9, -20.8, 0), App.Vector(126.9, -19.5, 0)), False)  # 16
sketch8.addGeometry(Part.LineSegment(App.Vector(126.9, -19.5, 0), App.Vector(128.6, -19.5, 0)), False)  # 17
sketch8.addConstraint([
    Sketcher.Constraint("Coincident", 9, 2, 10, 1),
    Sketcher.Constraint("Coincident", 10, 2, 11, 1),
    Sketcher.Constraint("Coincident", 11, 2, 12, 2),
    Sketcher.Constraint("Coincident", 12, 1, 13, 1),
    Sketcher.Constraint("Coincident", 13, 2, 14, 1),
    Sketcher.Constraint("Coincident", 14, 2, 15, 1),
    Sketcher.Constraint("Coincident", 15, 2, 16, 1),
    Sketcher.Constraint("Coincident", 16, 2, 17, 1),
    Sketcher.Constraint("Coincident", 17, 2, 9, 1),
    Sketcher.Constraint("Horizontal", 2),
    Sketcher.Constraint("Vertical", 3),
    Sketcher.Constraint("Horizontal", 5),
    Sketcher.Constraint("Vertical", 7),
    Sketcher.Constraint("Horizontal", 8),
    Sketcher.Constraint("Horizontal", 11),
    Sketcher.Constraint("Horizontal", 14),
    Sketcher.Constraint("Vertical", 16),
    Sketcher.Constraint("Horizontal", 17),
    Sketcher.Constraint("Parallel", 1, 4),
    Sketcher.Constraint("Parallel", 0, 6),
    Sketcher.Constraint("Parallel", 10, 13),
    Sketcher.Constraint("Parallel", 9, 15),
    Sketcher.Constraint("Horizontal", 3, 2, 6, 2),
    Sketcher.Constraint("Horizontal", 2, 2, 7, 2),
    Sketcher.Constraint("Horizontal", 8, 2, 10, 2),
    Sketcher.Constraint("Horizontal", 5, 2, 13, 2),
    Sketcher.Constraint("Horizontal", 11, 2, 16, 2),
    Sketcher.Constraint("Equal", 2, 8),
    Sketcher.Constraint("Equal", 0, 1),
    Sketcher.Constraint("Equal", 1, 4),
    Sketcher.Constraint("DistanceX", -1, 1, 12, 3, Q("140.000002 mm")),
    Sketcher.Constraint("DistanceY", 12, 3, -1, 1, Q("30 mm")),
    Sketcher.Constraint("DistanceY", 4, 2, 1, 2, Q("21 mm")),
    Sketcher.Constraint("DistanceX", 6, 2, 3, 2, Q("55 mm")),
    Sketcher.Constraint("DistanceX", 3, 2, 15, 2, Q("3 mm")),
    Sketcher.Constraint("DistanceY", 1, 2, -1, 1, Q("19.5 mm")),
    Sketcher.Constraint("DistanceX", 17, 1, 17, 2, Q("1.653301 mm")),
    Sketcher.Constraint("Radius", 12, Q("46.999998 mm")),
    Sketcher.Constraint("DistanceX", 2, 1, 2, 2, Q("1.647681 mm")),
    Sketcher.Constraint("DistanceY", 3, 2, 3, 1, Q("1.258229 mm")),
    Sketcher.Constraint("DistanceX", 13, 2, 10, 2, Q("27.907698 mm")),
    Sketcher.Constraint("Distance", 10, Q("35.486609 mm")),
    Sketcher.Constraint("DistanceX", 11, 1, 11, 2, Q("1.803346 mm")),
    Sketcher.Constraint("DistanceX", 14, 2, 14, 1, Q("3.189436 mm")),
    Sketcher.Constraint("DistanceY", 16, 1, 16, 2, Q("1.255747 mm")),
    Sketcher.Constraint("DistanceX", 4, 2, 9, 2, Q("56.413711 mm")),
])
pad7 = body.newObject("PartDesign::Pad", "Pad006")
pad7.Profile = sketch8
pad7.setExpression("Length", "Params.pad7_length")
doc.recompute()

fillet = body.newObject("PartDesign::Fillet", "Fillet")
fillet.Base = (pad7, edges_at(pad7, [
    (10.1, 15, -4.391),
    (36.57, 15, -30),
    (10.1, 15, -55.609),
    (11.538, 15, -57),
    (38.008, 15, -31.391),
    (64.478, 15, -57),
    (65.917, 15, -55.609),
    (39.446, 15, -30),
    (65.917, 15, -4.391),
    (64.478, 15, -3),
    (38.008, 15, -28.609),
    (11.538, 15, -3),
]))
fillet.setExpression("Radius", "Params.fillet_radius")
doc.recompute()

fillet2 = body.newObject("PartDesign::Fillet", "Fillet001")
fillet2.Base = (fillet, edges_at(fillet, [
    (68.917, 12.5, -57),
    (68.917, 12.5, -3),
    (123.917, 12.5, -57),
    (126.917, 12.5, -3),
    (123.917, 12.5, -3),
    (126.917, 12.5, -57),
    (178.471, 12.5, -57),
    (178.471, 12.5, -3),
]))
fillet2.setExpression("Radius", "Params.fillet2_radius")
doc.recompute()

fillet3 = body.newObject("PartDesign::Fillet", "Fillet002")
fillet3.Base = (fillet2, edges_at(fillet2, [
    (123.917, 27.5, -40.5),
    (126.917, 27.5, -40.5),
    (70.564, 27.5, -19.5),
    (68.917, 27.5, -20.758),
    (94.769, 27.5, -40.5),
    (98.064, 27.5, -40.5),
    (123.917, 27.5, -20.758),
    (122.269, 27.5, -19.5),
    (96.417, 27.5, -39.242),
    (128.57, 27.5, -19.5),
    (126.917, 27.5, -20.756),
    (152.912, 27.5, -40.5),
    (156.101, 27.5, -40.5),
    (186.04, 27.5, -20.55),
    (184.009, 27.5, -19.5),
    (154.478, 27.5, -39.178),
    (68.917, 27.5, -40.5),
    (185.812, 27.5, -40.5),
]))
fillet3.setExpression("Radius", "Params.fillet3_radius")

# Sketch on XZ plane
sketch9 = body.newObject("Sketcher::SketchObject", "Sketch008")
sketch9.AttachmentSupport = (doc.getObject("XZ_Plane"), [""])
sketch9.MapMode = "FlatFace"
sketch9.AttachmentOffset = App.Placement(App.Vector(0, 0, -30), App.Rotation())
sketch9.addGeometry([
    Part.LineSegment(App.Vector(116.4, -52.5, 0), App.Vector(76.4, -52.5, 0)),  # 0
    Part.ArcOfCircle(Part.Circle(App.Vector(76.4, -48, 0), App.Vector(0, 0, 1), 4.5), math.radians(90), math.radians(270)),  # 1
    Part.LineSegment(App.Vector(76.4, -43.5, 0), App.Vector(116.4, -43.5, 0)),  # 2
    Part.ArcOfCircle(Part.Circle(App.Vector(116.4, -48, 0), App.Vector(0, 0, 1), 4.5), math.radians(-90), math.radians(90)),  # 3
    Part.ArcOfCircle(Part.Circle(App.Vector(116.4, -48, 0), App.Vector(0, 0, 1), 2.2), math.radians(-90), math.radians(90)),  # 4
    Part.LineSegment(App.Vector(116.4, -45.8, 0), App.Vector(76.4, -45.8, 0)),  # 5
    Part.ArcOfCircle(Part.Circle(App.Vector(76.4, -48, 0), App.Vector(0, 0, 1), 2.2), math.radians(90), math.radians(270)),  # 6
    Part.LineSegment(App.Vector(76.4, -50.2, 0), App.Vector(116.4, -50.2, 0)),  # 7
    Part.LineSegment(App.Vector(174.4, -52.5, 0), App.Vector(134.4, -52.5, 0)),  # 8
    Part.ArcOfCircle(Part.Circle(App.Vector(134.4, -48, 0), App.Vector(0, 0, 1), 4.5), math.radians(90), math.radians(270)),  # 9
    Part.LineSegment(App.Vector(134.4, -43.5, 0), App.Vector(174.4, -43.5, 0)),  # 10
    Part.ArcOfCircle(Part.Circle(App.Vector(174.4, -48, 0), App.Vector(0, 0, 1), 4.5), math.radians(-90), math.radians(90)),  # 11
    Part.ArcOfCircle(Part.Circle(App.Vector(174.4, -48, 0), App.Vector(0, 0, 1), 2.2), math.radians(-90), math.radians(90)),  # 12
    Part.LineSegment(App.Vector(174.4, -45.8, 0), App.Vector(134.4, -45.8, 0)),  # 13
    Part.ArcOfCircle(Part.Circle(App.Vector(134.4, -48, 0), App.Vector(0, 0, 1), 2.2), math.radians(90), math.radians(270)),  # 14
    Part.LineSegment(App.Vector(134.4, -50.2, 0), App.Vector(174.4, -50.2, 0)),  # 15
    Part.LineSegment(App.Vector(116.4, -16.5, 0), App.Vector(76.4, -16.5, 0)),  # 16
    Part.ArcOfCircle(Part.Circle(App.Vector(76.4, -12, 0), App.Vector(0, 0, 1), 4.5), math.radians(90), math.radians(270)),  # 17
    Part.LineSegment(App.Vector(76.4, -7.5, 0), App.Vector(116.4, -7.5, 0)),  # 18
    Part.ArcOfCircle(Part.Circle(App.Vector(116.4, -12, 0), App.Vector(0, 0, 1), 4.5), math.radians(-90), math.radians(90)),  # 19
    Part.ArcOfCircle(Part.Circle(App.Vector(76.4, -12, 0), App.Vector(0, 0, 1), 2.2), math.radians(90), math.radians(270)),  # 20
    Part.LineSegment(App.Vector(76.4, -14.2, 0), App.Vector(116.4, -14.2, 0)),  # 21
    Part.ArcOfCircle(Part.Circle(App.Vector(116.4, -12, 0), App.Vector(0, 0, 1), 2.2), math.radians(-90), math.radians(90)),  # 22
    Part.LineSegment(App.Vector(116.4, -9.8, 0), App.Vector(76.4, -9.8, 0)),  # 23
    Part.LineSegment(App.Vector(174.4, -16.5, 0), App.Vector(134.4, -16.5, 0)),  # 24
    Part.ArcOfCircle(Part.Circle(App.Vector(134.4, -12, 0), App.Vector(0, 0, 1), 4.5), math.radians(90), math.radians(270)),  # 25
    Part.LineSegment(App.Vector(134.4, -7.5, 0), App.Vector(174.4, -7.5, 0)),  # 26
    Part.ArcOfCircle(Part.Circle(App.Vector(174.4, -12, 0), App.Vector(0, 0, 1), 4.5), math.radians(-90), math.radians(90)),  # 27
    Part.LineSegment(App.Vector(134.4, -14.2, 0), App.Vector(174.4, -14.2, 0)),  # 28
    Part.ArcOfCircle(Part.Circle(App.Vector(174.4, -12, 0), App.Vector(0, 0, 1), 2.2), math.radians(-90), math.radians(90)),  # 29
    Part.LineSegment(App.Vector(174.4, -9.8, 0), App.Vector(134.4, -9.8, 0)),  # 30
    Part.ArcOfCircle(Part.Circle(App.Vector(134.4, -12, 0), App.Vector(0, 0, 1), 2.2), math.radians(90), math.radians(270)),  # 31
], False)
sketch9.addConstraint([
    Sketcher.Constraint("Tangent", 0, 2, 1, 2),
    Sketcher.Constraint("Tangent", 1, 1, 2, 1),
    Sketcher.Constraint("Tangent", 2, 2, 3, 2),
    Sketcher.Constraint("Tangent", 3, 1, 0, 1),
    Sketcher.Constraint("Tangent", 4, 2, 5, 1),
    Sketcher.Constraint("Tangent", 5, 2, 6, 1),
    Sketcher.Constraint("Tangent", 6, 2, 7, 1),
    Sketcher.Constraint("Tangent", 7, 2, 4, 1),
    Sketcher.Constraint("Tangent", 8, 2, 9, 2),
    Sketcher.Constraint("Tangent", 9, 1, 10, 1),
    Sketcher.Constraint("Tangent", 10, 2, 11, 2),
    Sketcher.Constraint("Tangent", 11, 1, 8, 1),
    Sketcher.Constraint("Tangent", 12, 2, 13, 1),
    Sketcher.Constraint("Tangent", 13, 2, 14, 1),
    Sketcher.Constraint("Tangent", 14, 2, 15, 1),
    Sketcher.Constraint("Tangent", 15, 2, 12, 1),
    Sketcher.Constraint("Tangent", 16, 2, 17, 2),
    Sketcher.Constraint("Tangent", 17, 1, 18, 1),
    Sketcher.Constraint("Tangent", 18, 2, 19, 2),
    Sketcher.Constraint("Tangent", 19, 1, 16, 1),
    Sketcher.Constraint("Tangent", 20, 2, 21, 1),
    Sketcher.Constraint("Tangent", 21, 2, 22, 1),
    Sketcher.Constraint("Tangent", 22, 2, 23, 1),
    Sketcher.Constraint("Tangent", 23, 2, 20, 1),
    Sketcher.Constraint("Tangent", 24, 2, 25, 2),
    Sketcher.Constraint("Tangent", 25, 1, 26, 1),
    Sketcher.Constraint("Tangent", 26, 2, 27, 2),
    Sketcher.Constraint("Tangent", 27, 1, 24, 1),
    Sketcher.Constraint("Tangent", 28, 2, 29, 1),
    Sketcher.Constraint("Tangent", 29, 2, 30, 1),
    Sketcher.Constraint("Tangent", 30, 2, 31, 1),
    Sketcher.Constraint("Tangent", 31, 2, 28, 1),
    Sketcher.Constraint("Horizontal", 0),
    Sketcher.Constraint("Horizontal", 2),
    Sketcher.Constraint("Horizontal", 5),
    Sketcher.Constraint("Horizontal", 7),
    Sketcher.Constraint("Horizontal", 8),
    Sketcher.Constraint("Horizontal", 10),
    Sketcher.Constraint("Horizontal", 13),
    Sketcher.Constraint("Horizontal", 15),
    Sketcher.Constraint("Horizontal", 16),
    Sketcher.Constraint("Horizontal", 18),
    Sketcher.Constraint("Horizontal", 21),
    Sketcher.Constraint("Horizontal", 23),
    Sketcher.Constraint("Horizontal", 24),
    Sketcher.Constraint("Horizontal", 26),
    Sketcher.Constraint("Horizontal", 28),
    Sketcher.Constraint("Horizontal", 30),
    Sketcher.Constraint("Coincident", 4, 3, 3, 3),
    Sketcher.Constraint("Coincident", 12, 3, 11, 3),
    Sketcher.Constraint("Coincident", 20, 3, 17, 3),
    Sketcher.Constraint("Coincident", 29, 3, 27, 3),
    Sketcher.Constraint("Equal", 3, 9),
    Sketcher.Constraint("Equal", 6, 12),
    Sketcher.Constraint("Equal", 11, 17),
    Sketcher.Constraint("Equal", 14, 20),
    Sketcher.Constraint("Equal", 19, 25),
    Sketcher.Constraint("Equal", 22, 29),
    Sketcher.Constraint("Horizontal", 6, 3, 9, 3),
    Sketcher.Constraint("Horizontal", 22, 3, 25, 3),
    Sketcher.Constraint("Vertical", 6, 3, 17, 3),
    Sketcher.Constraint("Vertical", 4, 3, 19, 3),
    Sketcher.Constraint("Vertical", 4, 3, 22, 3),
    Sketcher.Constraint("Vertical", 14, 3, 25, 3),
    Sketcher.Constraint("Vertical", 12, 3, 27, 3),
    Sketcher.Constraint("Vertical", 14, 3, 31, 3),
    Sketcher.Constraint("Vertical", 20, 3, 0, 2),
    Sketcher.Constraint("Vertical", 31, 3, 8, 2),
    Sketcher.Constraint("Equal", 7, 8),
    Sketcher.Constraint("Radius", 1, Q("4.5 mm")),
    Sketcher.Constraint("DistanceX", 0, 2, 0, 1, Q("40 mm")),
    Sketcher.Constraint("Radius", 4, Q("2.25 mm")),
    Sketcher.Constraint("DistanceY", 1, 3, -1, 1, Q("48 mm")),
    Sketcher.Constraint("DistanceY", 17, 3, -1, 1, Q("12 mm")),
    Sketcher.Constraint("DistanceX", 3, 3, 9, 3, Q("18 mm")),
    Sketcher.Constraint("DistanceX", -1, 1, 1, 3, Q("76.416587 mm")),
])
sketch9.setExpression("Constraints[69]", "Params.sketch9_radius")
sketch9.setExpression("Constraints[70]", "Params.sketch9_width")
sketch9.setExpression("Constraints[71]", "Params.sketch9_radius2")
pad8 = body.newObject("PartDesign::Pad", "Pad007")
pad8.Profile = sketch9
pad8.setExpression("Length", "Params.pad8_length")

# Sketch on XZ plane
sketch10 = body.newObject("Sketcher::SketchObject", "Sketch009")
sketch10.AttachmentSupport = (doc.getObject("XZ_Plane"), [""])
sketch10.MapMode = "FlatFace"
sketch10.AttachmentOffset = App.Placement(App.Vector(0, 0, -25), App.Rotation())
add_polygon(sketch10, [(21, -55.8), (0, -55.8), (0, -54.1), (20, -54.1)])  # lines 0-3
sketch10.addGeometry(Part.LineSegment(App.Vector(0, -55.8, 0), App.Vector(21, -55.8, 0)), True)  # axis
sketch10.addConstraint([
    Sketcher.Constraint("Horizontal", 0),
    Sketcher.Constraint("Vertical", 1),
    Sketcher.Constraint("Horizontal", 2),
    Sketcher.Constraint("Horizontal", 4),
    Sketcher.Constraint("Coincident", 4, 1, 0, 2),
    Sketcher.Constraint("PointOnObject", 0, 2, -2),
    Sketcher.Constraint("Equal", 0, 4),
    Sketcher.Constraint("DistanceX", 2, 1, 2, 2, Q("20 mm")),
    Sketcher.Constraint("Angle", 3, Q("-59 deg")),
    Sketcher.Constraint("DistanceY", 1, 1, 1, 2, Q("1.65 mm")),
    Sketcher.Constraint("DistanceY", 1, 2, -1, 1, Q("54.1 mm")),
])
sketch10.setExpression("Constraints[11]", "Params.sketch10_width")
sketch10.setExpression("Constraints[13]", "Params.sketch10_height")
groove = body.newObject("PartDesign::Groove", "Groove")
groove.Profile = sketch10
groove.ReferenceAxis = (sketch10, ["Axis0"])
groove.setExpression("Angle", "Params.groove_angle")
doc.recompute()

linearpattern = body.newObject("PartDesign::LinearPattern", "LinearPattern")
linearpattern.Originals = [groove]
linearpattern.Direction = (doc.getObject("Z_Axis"), [""])
linearpattern.Mode = "offset"
linearpattern.setExpression("Offset", "Params.linearpattern_pitch")
linearpattern.Occurrences = 2
body.Tip = linearpattern
doc.recompute()

linearpattern2 = body.newObject("PartDesign::LinearPattern", "LinearPattern001")
linearpattern2.Originals = [groove]
linearpattern2.Direction = (doc.getObject("Z_Axis"), [""])
linearpattern2.Mode = "offset"
linearpattern2.setExpression("Offset", "Params.linearpattern2_pitch")
linearpattern2.Occurrences = 2
body.Tip = linearpattern2
doc.recompute()

datumline = body.newObject("PartDesign::Line", "DatumLine")
datumline.Placement = App.Placement(App.Vector(0, 0, 0), App.Rotation(App.Vector(0, 0, 1), App.Vector(0, -0.362009481, 0.932174413)))
linearpattern3 = body.newObject("PartDesign::LinearPattern", "LinearPattern002")
linearpattern3.Originals = [groove]
linearpattern3.Direction = (datumline, [""])
linearpattern3.Mode = "offset"
linearpattern3.setExpression("Offset", "Params.linearpattern3_pitch")
linearpattern3.Occurrences = 2
body.Tip = linearpattern3
doc.recompute()

datumline2 = body.newObject("PartDesign::Line", "DatumLine001")
datumline2.Placement = App.Placement(App.Vector(0, 0, 0), App.Rotation(App.Vector(0, 0, 1), App.Vector(0, -0.613409639, 0.789764911)))
linearpattern4 = body.newObject("PartDesign::LinearPattern", "LinearPattern003")
linearpattern4.Originals = [groove]
linearpattern4.Direction = (datumline2, [""])
linearpattern4.Mode = "offset"
linearpattern4.setExpression("Offset", "Params.linearpattern4_pitch")
linearpattern4.Occurrences = 2
body.Tip = linearpattern4
doc.recompute()

linearpattern5 = body.newObject("PartDesign::LinearPattern", "LinearPattern004")
linearpattern5.Originals = [groove]
linearpattern5.Direction = (doc.getObject("Y_Axis"), [""])
linearpattern5.Mode = "offset"
linearpattern5.setExpression("Offset", "Params.linearpattern5_pitch")
linearpattern5.Occurrences = 2
linearpattern5.Reversed = True
body.Tip = linearpattern5
body2 = doc.addObject("PartDesign::Body", "Body001")

# Sketch on XZ plane
sketch11 = body2.newObject("Sketcher::SketchObject", "Sketch010")
sketch11.AttachmentSupport = (doc.getObject("XZ_Plane001"), [""])
sketch11.MapMode = "FlatFace"
sketch11.AttachmentOffset = App.Placement(App.Vector(0, 0, -30), App.Rotation())
sketch11.addGeometry(Part.Circle(App.Vector(140, -30, 0), App.Vector(0, 0, 1), 10), False)
sketch11.addConstraint([
    Sketcher.Constraint("Diameter", 0, Q("20 mm")),
    Sketcher.Constraint("DistanceX", -1, 1, 0, 3, Q("140 mm")),
    Sketcher.Constraint("DistanceY", 0, 3, -1, 1, Q("30 mm")),
])
sketch11.setExpression("Constraints[0]", "Params.sketch11_diameter")
pad9 = body2.newObject("PartDesign::Pad", "Pad008")
pad9.Profile = sketch11
pad9.setExpression("Length", "Params.pad9_length")

doc.recompute()
